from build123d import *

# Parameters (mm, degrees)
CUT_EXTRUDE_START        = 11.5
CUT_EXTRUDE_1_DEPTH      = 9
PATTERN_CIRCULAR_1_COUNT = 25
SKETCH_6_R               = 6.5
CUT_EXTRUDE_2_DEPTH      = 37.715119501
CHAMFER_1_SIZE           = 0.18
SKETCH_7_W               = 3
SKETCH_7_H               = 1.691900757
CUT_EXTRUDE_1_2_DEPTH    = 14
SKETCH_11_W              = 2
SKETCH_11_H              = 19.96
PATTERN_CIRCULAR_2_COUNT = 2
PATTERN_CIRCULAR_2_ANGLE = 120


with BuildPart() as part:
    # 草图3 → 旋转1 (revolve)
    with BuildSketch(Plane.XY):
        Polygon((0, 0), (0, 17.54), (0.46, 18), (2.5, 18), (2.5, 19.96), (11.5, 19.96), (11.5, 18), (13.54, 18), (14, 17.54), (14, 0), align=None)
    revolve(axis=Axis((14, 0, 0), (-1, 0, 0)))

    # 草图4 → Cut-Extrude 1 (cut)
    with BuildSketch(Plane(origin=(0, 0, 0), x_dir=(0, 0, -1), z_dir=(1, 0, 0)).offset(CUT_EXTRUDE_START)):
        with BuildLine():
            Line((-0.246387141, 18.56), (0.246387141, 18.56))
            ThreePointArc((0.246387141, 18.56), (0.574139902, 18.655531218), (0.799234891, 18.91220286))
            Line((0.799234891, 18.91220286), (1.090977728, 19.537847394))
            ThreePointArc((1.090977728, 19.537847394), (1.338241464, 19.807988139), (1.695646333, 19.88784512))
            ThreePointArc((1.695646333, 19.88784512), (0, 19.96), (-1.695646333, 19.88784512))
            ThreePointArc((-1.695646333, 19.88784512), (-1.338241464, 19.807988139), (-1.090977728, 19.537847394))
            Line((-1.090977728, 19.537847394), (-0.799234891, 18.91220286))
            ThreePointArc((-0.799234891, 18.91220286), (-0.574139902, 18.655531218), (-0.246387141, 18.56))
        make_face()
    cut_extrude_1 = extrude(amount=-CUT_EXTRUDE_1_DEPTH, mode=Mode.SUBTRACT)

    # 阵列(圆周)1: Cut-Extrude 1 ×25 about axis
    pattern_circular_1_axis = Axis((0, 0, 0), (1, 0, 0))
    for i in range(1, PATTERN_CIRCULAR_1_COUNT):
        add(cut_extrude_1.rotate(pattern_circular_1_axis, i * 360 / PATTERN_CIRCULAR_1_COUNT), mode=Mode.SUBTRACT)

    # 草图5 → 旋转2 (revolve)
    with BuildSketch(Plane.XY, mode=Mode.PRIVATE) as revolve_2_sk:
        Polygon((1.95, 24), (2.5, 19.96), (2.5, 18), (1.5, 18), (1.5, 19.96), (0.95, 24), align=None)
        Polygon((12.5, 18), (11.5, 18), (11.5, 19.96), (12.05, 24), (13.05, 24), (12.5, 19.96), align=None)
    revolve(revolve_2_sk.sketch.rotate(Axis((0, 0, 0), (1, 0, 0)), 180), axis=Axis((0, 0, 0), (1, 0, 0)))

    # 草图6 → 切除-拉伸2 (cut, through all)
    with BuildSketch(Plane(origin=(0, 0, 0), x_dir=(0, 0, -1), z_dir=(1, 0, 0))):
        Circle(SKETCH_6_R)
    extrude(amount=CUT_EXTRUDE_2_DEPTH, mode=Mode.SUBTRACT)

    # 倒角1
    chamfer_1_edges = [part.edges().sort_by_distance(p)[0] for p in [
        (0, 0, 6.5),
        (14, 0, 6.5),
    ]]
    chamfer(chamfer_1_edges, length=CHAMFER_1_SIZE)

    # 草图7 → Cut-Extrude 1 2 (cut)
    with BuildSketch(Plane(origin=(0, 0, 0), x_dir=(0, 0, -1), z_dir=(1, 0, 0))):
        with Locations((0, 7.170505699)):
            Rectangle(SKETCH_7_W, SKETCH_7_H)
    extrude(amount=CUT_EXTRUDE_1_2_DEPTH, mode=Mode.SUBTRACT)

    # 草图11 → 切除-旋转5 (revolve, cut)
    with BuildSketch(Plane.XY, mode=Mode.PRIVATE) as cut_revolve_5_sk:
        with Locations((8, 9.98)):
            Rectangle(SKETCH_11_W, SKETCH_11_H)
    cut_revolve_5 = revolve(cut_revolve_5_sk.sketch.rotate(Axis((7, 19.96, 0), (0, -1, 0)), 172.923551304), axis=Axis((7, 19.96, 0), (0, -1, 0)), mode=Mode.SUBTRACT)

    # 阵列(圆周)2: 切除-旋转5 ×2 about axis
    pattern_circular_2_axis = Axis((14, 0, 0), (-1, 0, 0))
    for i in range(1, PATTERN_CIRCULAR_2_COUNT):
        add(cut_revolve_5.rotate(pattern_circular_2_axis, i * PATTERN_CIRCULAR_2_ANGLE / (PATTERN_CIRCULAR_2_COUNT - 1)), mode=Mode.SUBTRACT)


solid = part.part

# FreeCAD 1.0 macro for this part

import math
import FreeCAD as App
import Part
import Sketcher
from FreeCAD import Vector
Q = App.Units.Quantity


def edges_at(feature, points):
    """Names of the edges that pass closest to the given points."""
    edges = feature.Shape.Edges
    near = lambda p: min(range(len(edges)), key=lambda i: edges[i].distToShape(Part.Vertex(*p))[0])
    return sorted({f"Edge{near(p) + 1}" for p in points})

doc = App.newDocument("Part")
body = doc.addObject("PartDesign::Body", "Body")

sketch1 = body.newObject("Sketcher::SketchObject", "Sketch")
sketch1.AttachmentSupport = (doc.getObject("XY_Plane"), [""])
sketch1.MapMode = "FlatFace"
sketch1.addGeometry([
    Part.LineSegment(Vector(0, 17.5, 0), Vector(0, 0, 0)),
    Part.LineSegment(Vector(0, 0, 0), Vector(14, 0, 0)),
    Part.LineSegment(Vector(14, 0, 0), Vector(14, 17.5, 0)),
    Part.LineSegment(Vector(14, 17.5, 0), Vector(13.5, 18, 0)),
    Part.LineSegment(Vector(13.5, 18, 0), Vector(11.5, 18, 0)),
    Part.LineSegment(Vector(11.5, 18, 0), Vector(11.5, 20, 0)),
    Part.LineSegment(Vector(11.5, 20, 0), Vector(2.5, 20, 0)),
    Part.LineSegment(Vector(2.5, 20, 0), Vector(2.5, 18, 0)),
    Part.LineSegment(Vector(2.5, 18, 0), Vector(0.5, 18, 0)),
    Part.LineSegment(Vector(0.5, 18, 0), Vector(0, 17.5, 0)),
], False)
sketch1.addConstraint([
    Sketcher.Constraint("Coincident", 0, 2, 1, 1),
    Sketcher.Constraint("Coincident", 1, 2, 2, 1),
    Sketcher.Constraint("Coincident", 2, 2, 3, 1),
    Sketcher.Constraint("Coincident", 3, 2, 4, 1),
    Sketcher.Constraint("Coincident", 4, 2, 5, 1),
    Sketcher.Constraint("Coincident", 5, 2, 6, 1),
    Sketcher.Constraint("Coincident", 6, 2, 7, 1),
    Sketcher.Constraint("Coincident", 7, 2, 8, 1),
    Sketcher.Constraint("Coincident", 8, 2, 9, 1),
    Sketcher.Constraint("Coincident", 9, 2, 0, 1),
    Sketcher.Constraint("Vertical", 0),
    Sketcher.Constraint("Horizontal", 1),
    Sketcher.Constraint("Vertical", 2),
    Sketcher.Constraint("Horizontal", 4),
    Sketcher.Constraint("Vertical", 5),
    Sketcher.Constraint("Horizontal", 6),
    Sketcher.Constraint("Vertical", 7),
    Sketcher.Constraint("Horizontal", 8),
    Sketcher.Constraint("Coincident", 0, 2, -1, 1),
    Sketcher.Constraint("Perpendicular", 3, 9),
    Sketcher.Constraint("Horizontal", 4, 2, 7, 2),
    Sketcher.Constraint("Horizontal", 2, 2, 9, 2),
    Sketcher.Constraint("Equal", 4, 8),
    Sketcher.Constraint("Equal", 3, 9),
    Sketcher.Constraint("DistanceX", 1, 1, 1, 2, Q("14 mm")),
    Sketcher.Constraint("DistanceX", 6, 2, 6, 1, Q("9 mm")),
    Sketcher.Constraint("DistanceY", -1, 1, 3, 2, Q("18 mm")),
    Sketcher.Constraint("DistanceX", 4, 2, 4, 1, Q("2.04 mm")),
    Sketcher.Constraint("DistanceY", 5, 1, 5, 2, Q("1.96 mm")),
])
revolution = body.newObject("PartDesign::Revolution", "Revolution")
revolution.Profile = sketch1
revolution.ReferenceAxis = (sketch1, ["H_Axis"])
revolution.Angle = 360

sketch2 = body.newObject("Sketcher::SketchObject", "Sketch001")
sketch2.AttachmentSupport = (doc.getObject("YZ_Plane"), [""])
sketch2.MapMode = "FlatFace"
sketch2.AttachmentOffset = App.Placement(Vector(0, 0, 11.5), App.Rotation())
sketch2.addGeometry([
    Part.LineSegment(Vector(18.56, 0.25, 0), Vector(18.56, -0.25, 0)),
    Part.ArcOfCircle(Part.Circle(Vector(19.17, -0.25, 0), Vector(0, 0, 1), 0.61), math.radians(180), math.radians(245)),
    Part.LineSegment(Vector(18.91, -0.8, 0), Vector(19.54, -1.09, 0)),
    Part.ArcOfCircle(Part.Circle(Vector(19.28, -1.64, 0), Vector(0, 0, 1), 0.61), math.radians(-5), math.radians(65)),
    Part.ArcOfCircle(Part.Circle(Vector(0, 0, 0), Vector(0, 0, 1), 19.96), math.radians(-4.87), math.radians(4.87)),
    Part.ArcOfCircle(Part.Circle(Vector(19.28, 1.64, 0), Vector(0, 0, 1), 0.61), math.radians(-65), math.radians(5)),
    Part.LineSegment(Vector(19.54, 1.09, 0), Vector(18.91, 0.8, 0)),
    Part.ArcOfCircle(Part.Circle(Vector(19.17, 0.25, 0), Vector(0, 0, 1), 0.61), math.radians(115), math.radians(180)),
], False)
sketch2.addConstraint([
    Sketcher.Constraint("Tangent", 0, 2, 1, 1),
    Sketcher.Constraint("Tangent", 1, 2, 2, 1),
    Sketcher.Constraint("Tangent", 2, 2, 3, 2),
    Sketcher.Constraint("Tangent", 3, 1, 4, 1),
    Sketcher.Constraint("Tangent", 4, 2, 5, 2),
    Sketcher.Constraint("Tangent", 5, 1, 6, 1),
    Sketcher.Constraint("Tangent", 6, 2, 7, 1),
    Sketcher.Constraint("Tangent", 7, 2, 0, 1),
    Sketcher.Constraint("Vertical", 0),
    Sketcher.Constraint("Coincident", 4, 3, -1, 1),
    Sketcher.Constraint("Equal", 1, 3),
    Sketcher.Constraint("Equal", 3, 5),
    Sketcher.Constraint("Equal", 5, 7),
    Sketcher.Constraint("Symmetric", 2, 2, 5, 1, -1),
    Sketcher.Constraint("Angle", 2, Q("-25 deg")),
    Sketcher.Constraint("Radius", 1, Q("0.61 mm")),
    Sketcher.Constraint("Radius", 4, Q("19.96 mm")),
    Sketcher.Constraint("DistanceX", -1, 1, 1, 3, Q("19.17 mm")),
    Sketcher.Constraint("DistanceY", 0, 2, 0, 1, Q("0.492774 mm")),
])
pocket1 = body.newObject("PartDesign::Pocket", "Pocket")
pocket1.Profile = sketch2
pocket1.Length = 9
doc.recompute()

polarpattern = body.newObject("PartDesign::PolarPattern", "PolarPattern")
polarpattern.Originals = [pocket1]
polarpattern.Axis = (doc.getObject("X_Axis"), [""])
polarpattern.Angle = 360
polarpattern.Occurrences = 25
body.Tip = polarpattern

sketch3 = body.newObject("Sketcher::SketchObject", "Sketch002")
sketch3.AttachmentSupport = (doc.getObject("XY_Plane"), [""])
sketch3.MapMode = "FlatFace"
sketch3.addGeometry([
    Part.LineSegment(Vector(2.5, 20, 0), Vector(1.9, 24, 0)),
    Part.LineSegment(Vector(1.9, 24, 0), Vector(0.9, 24, 0)),
    Part.LineSegment(Vector(0.9, 24, 0), Vector(1.5, 20, 0)),
    Part.LineSegment(Vector(1.5, 20, 0), Vector(1.5, 18, 0)),
    Part.LineSegment(Vector(1.5, 18, 0), Vector(2.5, 18, 0)),
    Part.LineSegment(Vector(2.5, 18, 0), Vector(2.5, 20, 0)),
    Part.LineSegment(Vector(11.5, 18, 0), Vector(12.5, 18, 0)),
    Part.LineSegment(Vector(12.5, 18, 0), Vector(12.5, 20, 0)),
    Part.LineSegment(Vector(12.5, 20, 0), Vector(13.1, 24, 0)),
    Part.LineSegment(Vector(13.1, 24, 0), Vector(12.1, 24, 0)),
    Part.LineSegment(Vector(12.1, 24, 0), Vector(11.5, 20, 0)),
    Part.LineSegment(Vector(11.5, 20, 0), Vector(11.5, 18, 0)),
], False)
sketch3.addConstraint([
    Sketcher.Constraint("Coincident", 0, 2, 1, 1),
    Sketcher.Constraint("Coincident", 1, 2, 2, 1),
    Sketcher.Constraint("Coincident", 2, 2, 3, 1),
    Sketcher.Constraint("Coincident", 3, 2, 4, 1),
    Sketcher.Constraint("Coincident", 4, 2, 5, 1),
    Sketcher.Constraint("Coincident", 5, 2, 0, 1),
    Sketcher.Constraint("Coincident", 6, 2, 7, 1),
    Sketcher.Constraint("Coincident", 7, 2, 8, 1),
    Sketcher.Constraint("Coincident", 8, 2, 9, 1),
    Sketcher.Constraint("Coincident", 9, 2, 10, 1),
    Sketcher.Constraint("Coincident", 10, 2, 11, 1),
    Sketcher.Constraint("Coincident", 11, 2, 6, 1),
    Sketcher.Constraint("Horizontal", 1),
    Sketcher.Constraint("Vertical", 3),
    Sketcher.Constraint("Horizontal", 4),
    Sketcher.Constraint("Vertical", 5),
    Sketcher.Constraint("Horizontal", 6),
    Sketcher.Constraint("Vertical", 7),
    Sketcher.Constraint("Horizontal", 9),
    Sketcher.Constraint("Vertical", 11),
    Sketcher.Constraint("Parallel", 0, 2),
    Sketcher.Constraint("Parallel", 8, 10),
    Sketcher.Constraint("Horizontal", 2, 2, 5, 2),
    Sketcher.Constraint("Horizontal", 4, 2, 6, 2),
    Sketcher.Constraint("Horizontal", 5, 2, 7, 2),
    Sketcher.Constraint("Horizontal", 1, 2, 8, 2),
    Sketcher.Constraint("Horizontal", 7, 2, 10, 2),
    Sketcher.Constraint("Equal", 4, 6),
    Sketcher.Constraint("Equal", 2, 8),
    Sketcher.Constraint("DistanceX", 1, 2, 1, 1, Q("1 mm")),
    Sketcher.Constraint("DistanceY", -1, 1, 0, 2, Q("24 mm")),
    Sketcher.Constraint("DistanceY", -1, 1, 3, 2, Q("18 mm")),
    Sketcher.Constraint("DistanceX", 4, 2, 6, 2, Q("10 mm")),
    Sketcher.Constraint("DistanceY", 3, 2, 3, 1, Q("1.96 mm")),
    Sketcher.Constraint("DistanceX", -1, 1, 2, 2, Q("1.5 mm")),
    Sketcher.Constraint("DistanceX", 0, 2, 8, 2, Q("11.1 mm")),
])
revolution2 = body.newObject("PartDesign::Revolution", "Revolution001")
revolution2.Profile = sketch3
revolution2.ReferenceAxis = (sketch3, ["H_Axis"])
revolution2.Angle = 360

sketch4 = body.newObject("Sketcher::SketchObject", "Sketch003")
sketch4.AttachmentSupport = (doc.getObject("YZ_Plane"), [""])
sketch4.MapMode = "FlatFace"
sketch4.addGeometry(Part.Circle(Vector(0, 0, 0), Vector(0, 0, 1), 6), False)
sketch4.addConstraint([
    Sketcher.Constraint("Coincident", 0, 3, -1, 1),
    Sketcher.Constraint("Diameter", 0, Q("13 mm")),
])
pocket2 = body.newObject("PartDesign::Pocket", "Pocket001")
pocket2.Profile = sketch4
pocket2.Type = "ThroughAll"
pocket2.Reversed = True
doc.recompute()

chamfer = body.newObject("PartDesign::Chamfer", "Chamfer")
chamfer.Base = (pocket2, edges_at(pocket2, [(0, 0, 6.5), (14, 0, 6.5)]))
chamfer.Size = 0.18

sketch5 = body.newObject("Sketcher::SketchObject", "Sketch004")
sketch5.AttachmentSupport = (doc.getObject("YZ_Plane"), [""])
sketch5.MapMode = "FlatFace"
sketch5.addGeometry([
    Part.LineSegment(Vector(8, 1.5, 0), Vector(6.3, 1.5, 0)),
    Part.LineSegment(Vector(6.3, 1.5, 0), Vector(6.3, -1.5, 0)),
    Part.LineSegment(Vector(6.3, -1.5, 0), Vector(8, -1.5, 0)),
    Part.LineSegment(Vector(8, -1.5, 0), Vector(8, 1.5, 0)),
], False)
sketch5.addConstraint([
    Sketcher.Constraint("Coincident", 0, 2, 1, 1),
    Sketcher.Constraint("Coincident", 1, 2, 2, 1),
    Sketcher.Constraint("Coincident", 2, 2, 3, 1),
    Sketcher.Constraint("Coincident", 3, 2, 0, 1),
    Sketcher.Constraint("Horizontal", 0),
    Sketcher.Constraint("Vertical", 1),
    Sketcher.Constraint("Horizontal", 2),
    Sketcher.Constraint("Vertical", 3),
    Sketcher.Constraint("DistanceY", 1, 2, 1, 1, Q("3 mm")),
    Sketcher.Constraint("DistanceY", -1, 1, 0, 2, Q("1.5 mm")),
    Sketcher.Constraint("DistanceX", 0, 2, 0, 1, Q("1.691901 mm")),
    Sketcher.Constraint("DistanceX", -1, 1, 0, 2, Q("6.324555 mm")),
])
pocket3 = body.newObject("PartDesign::Pocket", "Pocket002")
pocket3.Profile = sketch5
pocket3.Length = 14
pocket3.Reversed = True

sketch6 = body.newObject("Sketcher::SketchObject", "Sketch005")
sketch6.AttachmentSupport = (doc.getObject("XY_Plane"), [""])
sketch6.MapMode = "FlatFace"
sketch6.addGeometry([
    Part.LineSegment(Vector(7, 20, 0), Vector(7, 0, 0)),
    Part.LineSegment(Vector(7, 0, 0), Vector(9, 0, 0)),
    Part.LineSegment(Vector(9, 0, 0), Vector(9, 20, 0)),
    Part.LineSegment(Vector(9, 20, 0), Vector(7, 20, 0)),
], False)
sketch6.addGeometry(Part.LineSegment(Vector(7, 20, 0), Vector(7, 0, 0)), True)
sketch6.addConstraint([
    Sketcher.Constraint("Coincident", 0, 2, 1, 1),
    Sketcher.Constraint("Coincident", 1, 2, 2, 1),
    Sketcher.Constraint("Coincident", 2, 2, 3, 1),
    Sketcher.Constraint("Coincident", 3, 2, 0, 1),
    Sketcher.Constraint("Vertical", 0),
    Sketcher.Constraint("Horizontal", 1),
    Sketcher.Constraint("Vertical", 2),
    Sketcher.Constraint("Horizontal", 3),
    Sketcher.Constraint("Vertical", 4),
    Sketcher.Constraint("Coincident", 4, 1, 3, 2),
    Sketcher.Constraint("PointOnObject", 0, 2, -1),
    Sketcher.Constraint("PointOnObject", 4, 2, -1),
    Sketcher.Constraint("DistanceX", 1, 1, 1, 2, Q("2 mm")),
    Sketcher.Constraint("DistanceX", -1, 1, 0, 2, Q("7 mm")),
    Sketcher.Constraint("DistanceY", 0, 2, 0, 1, Q("19.96 mm")),
])
groove = body.newObject("PartDesign::Groove", "Groove")
groove.Profile = sketch6
groove.ReferenceAxis = (sketch6, ["Axis0"])
groove.Angle = 360
doc.recompute()

polarpattern2 = body.newObject("PartDesign::PolarPattern", "PolarPattern001")
polarpattern2.Originals = [groove]
polarpattern2.Axis = (doc.getObject("X_Axis"), [""])
polarpattern2.Angle = 120
polarpattern2.Occurrences = 2
polarpattern2.Reversed = True
body.Tip = polarpattern2

doc.recompute()
